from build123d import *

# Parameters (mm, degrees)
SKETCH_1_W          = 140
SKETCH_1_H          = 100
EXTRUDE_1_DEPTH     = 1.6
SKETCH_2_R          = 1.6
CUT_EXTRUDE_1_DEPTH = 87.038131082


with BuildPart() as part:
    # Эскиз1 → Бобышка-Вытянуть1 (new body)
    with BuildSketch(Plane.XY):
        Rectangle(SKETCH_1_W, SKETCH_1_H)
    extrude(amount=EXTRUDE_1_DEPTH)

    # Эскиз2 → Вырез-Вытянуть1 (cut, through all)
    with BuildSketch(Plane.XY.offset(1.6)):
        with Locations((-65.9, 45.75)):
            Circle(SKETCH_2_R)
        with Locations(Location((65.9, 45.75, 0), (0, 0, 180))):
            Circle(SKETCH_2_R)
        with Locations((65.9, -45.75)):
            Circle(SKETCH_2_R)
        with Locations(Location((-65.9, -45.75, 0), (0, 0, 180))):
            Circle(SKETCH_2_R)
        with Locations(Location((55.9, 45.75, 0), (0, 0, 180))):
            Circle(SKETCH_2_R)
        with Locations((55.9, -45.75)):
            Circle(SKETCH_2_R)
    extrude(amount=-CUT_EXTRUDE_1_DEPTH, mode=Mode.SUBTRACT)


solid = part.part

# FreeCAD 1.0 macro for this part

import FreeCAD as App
import Part
import Sketcher
Q = App.Units.Quantity

doc = App.newDocument("Part")
body = doc.addObject("PartDesign::Body", "Body")

# Sketch on XY plane
sketch1 = body.newObject("Sketcher::SketchObject", "Sketch")
sketch1.AttachmentSupport = (doc.getObject("XY_Plane"), [""])
sketch1.MapMode = "FlatFace"
sketch1.addGeometry([
    Part.LineSegment(App.Vector(-70, 50, 0), App.Vector(-70, -50, 0)),
    Part.LineSegment(App.Vector(-70, -50, 0), App.Vector(70, -50, 0)),
    Part.LineSegment(App.Vector(70, -50, 0), App.Vector(70, 50, 0)),
    Part.LineSegment(App.Vector(70, 50, 0), App.Vector(-70, 50, 0)),
], False)
sketch1.addConstraint([
    Sketcher.Constraint("Coincident", 0, 2, 1, 1),
    Sketcher.Constraint("Coincident", 1, 2, 2, 1),
    Sketcher.Constraint("Coincident", 2, 2, 3, 1),
    Sketcher.Constraint("Coincident", 3, 2, 0, 1),
    Sketcher.Constraint("Vertical", 0),
    Sketcher.Constraint("Horizontal", 1),
    Sketcher.Constraint("Vertical", 2),
    Sketcher.Constraint("Horizontal", 3),
    Sketcher.Constraint("Symmetric", 0, 2, 2, 2, -1, 1),
    Sketcher.Constraint("DistanceX", 1, 1, 1, 2, Q("140 mm")),
    Sketcher.Constraint("DistanceY", 0, 2, 0, 1, Q("100 mm")),
])
pad1 = body.newObject("PartDesign::Pad", "Pad")
pad1.Profile = sketch1
pad1.Length = 1.6

# Sketch on XY plane
sketch2 = body.newObject("Sketcher::SketchObject", "Sketch001")
sketch2.AttachmentSupport = (doc.getObject("XY_Plane"), [""])
sketch2.MapMode = "FlatFace"
sketch2.AttachmentOffset = App.Placement(App.Vector(0, 0, 1.6), App.Rotation())
sketch2.addGeometry([
    Part.Circle(App.Vector(-65.9, 45.75, 0), App.Vector(0, 0, 1), 1.6),  # 0
    Part.Circle(App.Vector(65.9, 45.75, 0), App.Vector(0, 0, 1), 1.6),  # 1
    Part.Circle(App.Vector(65.9, -45.75, 0), App.Vector(0, 0, 1), 1.6),  # 2
    Part.Circle(App.Vector(-65.9, -45.75, 0), App.Vector(0, 0, 1), 1.6),  # 3
    Part.Circle(App.Vector(55.9, 45.75, 0), App.Vector(0, 0, 1), 1.6),  # 4
    Part.Circle(App.Vector(55.9, -45.75, 0), App.Vector(0, 0, 1), 1.6),  # 5
], False)
sketch2.addConstraint([
    Sketcher.Constraint("Equal", 0, 1),
    Sketcher.Constraint("Equal", 1, 2),
    Sketcher.Constraint("Equal", 2, 3),
    Sketcher.Constraint("Equal", 3, 4),
    Sketcher.Constraint("Equal", 4, 5),
    Sketcher.Constraint("Symmetric", 0, 3, 2, 3, -1, 1),
    Sketcher.Constraint("Symmetric", 1, 3, 3, 3, -1, 1),
    Sketcher.Constraint("Symmetric", 0, 3, 1, 3, -2),
    Sketcher.Constraint("Symmetric", 4, 3, 5, 3, -1),
    Sketcher.Constraint("Horizontal", 1, 3, 4, 3),
    Sketcher.Constraint("Diameter", 0, Q("3.2 mm")),
    Sketcher.Constraint("DistanceX", 4, 3, 1, 3, Q("10 mm")),
    Sketcher.Constraint("DistanceX", 0, 3, -1, 1, Q("65.9 mm")),
    Sketcher.Constraint("DistanceY", 2, 3, 1, 3, Q("91.5 mm")),
])
pocket1 = body.newObject("PartDesign::Pocket", "Pocket")
pocket1.Profile = sketch2
pocket1.Type = "ThroughAll"

doc.recompute()
